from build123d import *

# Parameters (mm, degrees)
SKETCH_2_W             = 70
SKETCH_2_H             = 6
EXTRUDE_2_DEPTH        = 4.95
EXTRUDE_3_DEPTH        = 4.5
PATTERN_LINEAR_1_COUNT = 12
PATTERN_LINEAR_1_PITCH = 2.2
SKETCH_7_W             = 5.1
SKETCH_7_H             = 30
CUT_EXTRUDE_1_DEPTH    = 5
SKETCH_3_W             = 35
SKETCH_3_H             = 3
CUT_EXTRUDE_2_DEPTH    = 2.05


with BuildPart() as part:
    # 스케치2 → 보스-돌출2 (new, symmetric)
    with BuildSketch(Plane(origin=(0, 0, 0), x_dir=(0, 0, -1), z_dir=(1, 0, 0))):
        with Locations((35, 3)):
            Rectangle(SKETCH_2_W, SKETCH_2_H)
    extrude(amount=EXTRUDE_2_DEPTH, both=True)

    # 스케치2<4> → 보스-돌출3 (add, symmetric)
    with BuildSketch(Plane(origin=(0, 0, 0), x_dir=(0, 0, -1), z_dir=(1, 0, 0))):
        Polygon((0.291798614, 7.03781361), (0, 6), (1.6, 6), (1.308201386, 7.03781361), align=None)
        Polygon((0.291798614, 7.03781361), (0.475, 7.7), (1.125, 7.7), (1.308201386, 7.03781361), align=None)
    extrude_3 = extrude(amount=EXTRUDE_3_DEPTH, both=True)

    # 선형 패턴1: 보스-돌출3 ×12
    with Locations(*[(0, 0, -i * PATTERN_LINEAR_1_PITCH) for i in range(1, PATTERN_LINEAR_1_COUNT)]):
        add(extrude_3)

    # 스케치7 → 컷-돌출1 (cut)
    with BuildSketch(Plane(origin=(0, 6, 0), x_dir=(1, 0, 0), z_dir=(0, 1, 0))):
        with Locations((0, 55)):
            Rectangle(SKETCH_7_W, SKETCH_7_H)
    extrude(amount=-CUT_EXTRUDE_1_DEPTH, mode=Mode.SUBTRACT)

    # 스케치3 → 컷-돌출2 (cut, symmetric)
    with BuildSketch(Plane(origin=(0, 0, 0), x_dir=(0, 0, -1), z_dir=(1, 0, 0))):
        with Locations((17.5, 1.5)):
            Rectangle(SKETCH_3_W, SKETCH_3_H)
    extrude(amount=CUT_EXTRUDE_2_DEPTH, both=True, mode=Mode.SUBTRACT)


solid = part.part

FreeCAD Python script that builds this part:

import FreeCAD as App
import Part
import Sketcher


def add_polygon(sketch, points):
    """Adds a closed chain of lines whose ends are joined by coincident constraints."""
    first, n = sketch.GeometryCount, len(points)
    for a, b in zip(points, points[1:] + points[:1]):
        sketch.addGeometry(Part.LineSegment(App.Vector(*a, 0), App.Vector(*b, 0)), False)
    for i in range(n):
        sketch.addConstraint(Sketcher.Constraint("Coincident", first + i, 2, first + (i + 1) % n, 1))

doc = App.newDocument("Part")
params = doc.addObject("Spreadsheet::Sheet", "Params")
for row, (alias, value) in enumerate([
    ("sketch1_width", "6 mm"),
    ("sketch1_height", "70 mm"),
    ("pad1_length", "9.9 mm"),
    ("sketch2_height", "1.6 mm"),
    ("sketch2_height2", "0.65 mm"),
    ("pad2_length", "9 mm"),
    ("linearpattern_pitch", "2.2 mm"),
    ("sketch3_height", "30 mm"),
    ("sketch3_width", "5.1 mm"),
    ("pocket1_length", "5 mm"),
    ("sketch4_width", "3 mm"),
    ("sketch4_height", "35 mm"),
    ("pocket2_length", "4.1 mm"),
], start=1):
    params.set(f"A{row}", alias)
    params.set(f"B{row}", "=" + value)
    params.setAlias(f"B{row}", alias)

body = doc.addObject("PartDesign::Body", "Body")

# Sketch on YZ plane
sketch1 = body.newObject("Sketcher::SketchObject", "Sketch")
sketch1.AttachmentSupport = (doc.getObject("YZ_Plane"), [""])
sketch1.MapMode = "FlatFace"
add_polygon(sketch1, [(6, 0), (0, 0), (0, -70), (6, -70)])  # lines 0-3
sketch1.addConstraint(Sketcher.Constraint("Horizontal", 0))
sketch1.addConstraint(Sketcher.Constraint("Vertical", 1))
sketch1.addConstraint(Sketcher.Constraint("Horizontal", 2))
sketch1.addConstraint(Sketcher.Constraint("Vertical", 3))
sketch1.addConstraint(Sketcher.Constraint("Coincident", 0, 2, -1, 1))
sketch1.addConstraint(Sketcher.Constraint("DistanceX", 0, 2, 0, 1, 6.0))
sketch1.addConstraint(Sketcher.Constraint("DistanceY", 1, 2, 1, 1, 70.0))
sketch1.setExpression("Constraints[9]", "Params.sketch1_width")
sketch1.setExpression("Constraints[10]", "Params.sketch1_height")
pad1 = body.newObject("PartDesign::Pad", "Pad")
pad1.Profile = sketch1
pad1.setExpression("Length", "Params.pad1_length")
pad1.Midplane = True

# Sketch on YZ plane
sketch2 = body.newObject("Sketcher::SketchObject", "Sketch001")
sketch2.AttachmentSupport = (doc.getObject("YZ_Plane"), [""])
sketch2.MapMode = "FlatFace"
add_polygon(sketch2, [(7, -0.3), (6, 0), (6, -1.6), (7, -1.3), (7.7, -1.1), (7.7, -0.5)])  # lines 0-5
sketch2.addConstraint(Sketcher.Constraint("Vertical", 1))
sketch2.addConstraint(Sketcher.Constraint("Vertical", 4))
sketch2.addConstraint(Sketcher.Constraint("PointOnObject", 0, 2, -1))
sketch2.addConstraint(Sketcher.Constraint("Vertical", 2, 2, 5, 2))
sketch2.addConstraint(Sketcher.Constraint("Equal", 0, 2))
sketch2.addConstraint(Sketcher.Constraint("Equal", 3, 5))
sketch2.addConstraint(Sketcher.Constraint("DistanceY", 1, 2, 1, 1, 1.6))
sketch2.addConstraint(Sketcher.Constraint("DistanceX", -1, 1, 0, 2, 6.0))
sketch2.addConstraint(Sketcher.Constraint("DistanceY", 4, 1, 4, 2, 0.65))
sketch2.addConstraint(Sketcher.Constraint("DistanceX", -1, 1, 3, 2, 7.7))
sketch2.addConstraint(Sketcher.Constraint("DistanceY", 2, 2, -1, 1, 1.308201))
sketch2.addConstraint(Sketcher.Constraint("Distance", 3, 0.687062))
sketch2.setExpression("Constraints[12]", "Params.sketch2_height")
sketch2.setExpression("Constraints[14]", "Params.sketch2_height2")
pad2 = body.newObject("PartDesign::Pad", "Pad001")
pad2.Profile = sketch2
pad2.setExpression("Length", "Params.pad2_length")
pad2.Midplane = True
doc.recompute()

linearpattern = body.newObject("PartDesign::LinearPattern", "LinearPattern")
linearpattern.Originals = [pad2]
linearpattern.Direction = (doc.getObject("Z_Axis"), [""])
linearpattern.Mode = "offset"
linearpattern.setExpression("Offset", "Params.linearpattern_pitch")
linearpattern.Occurrences = 12
linearpattern.Reversed = True
body.Tip = linearpattern

# Sketch on XZ plane
sketch3 = body.newObject("Sketcher::SketchObject", "Sketch002")
sketch3.AttachmentSupport = (doc.getObject("XZ_Plane"), [""])
sketch3.MapMode = "FlatFace"
sketch3.AttachmentOffset = App.Placement(App.Vector(0, 0, -6), App.Rotation())
add_polygon(sketch3, [(-3, -70), (-3, -40), (3, -40), (3, -70)])  # lines 0-3
sketch3.addConstraint(Sketcher.Constraint("Vertical", 0))
sketch3.addConstraint(Sketcher.Constraint("Horizontal", 1))
sketch3.addConstraint(Sketcher.Constraint("Vertical", 2))
sketch3.addConstraint(Sketcher.Constraint("Horizontal", 3))
sketch3.addConstraint(Sketcher.Constraint("DistanceY", 0, 1, 0, 2, 30.0))
sketch3.addConstraint(Sketcher.Constraint("DistanceX", 1, 1, 1, 2, 5.1))
sketch3.addConstraint(Sketcher.Constraint("DistanceY", 0, 2, -1, 1, 40.0))
sketch3.addConstraint(Sketcher.Constraint("DistanceX", 0, 2, -1, 1, 2.55))
sketch3.setExpression("Constraints[8]", "Params.sketch3_height")
sketch3.setExpression("Constraints[9]", "Params.sketch3_width")
pocket1 = body.newObject("PartDesign::Pocket", "Pocket")
pocket1.Profile = sketch3
pocket1.setExpression("Length", "Params.pocket1_length")
pocket1.Reversed = True

# Sketch on YZ plane
sketch4 = body.newObject("Sketcher::SketchObject", "Sketch003")
sketch4.AttachmentSupport = (doc.getObject("YZ_Plane"), [""])
sketch4.MapMode = "FlatFace"
add_polygon(sketch4, [(3, 0), (0, 0), (0, -35), (3, -35)])  # lines 0-3
sketch4.addConstraint(Sketcher.Constraint("Horizontal", 0))
sketch4.addConstraint(Sketcher.Constraint("Vertical", 1))
sketch4.addConstraint(Sketcher.Constraint("Horizontal", 2))
sketch4.addConstraint(Sketcher.Constraint("Vertical", 3))
sketch4.addConstraint(Sketcher.Constraint("Coincident", 0, 2, -1, 1))
sketch4.addConstraint(Sketcher.Constraint("DistanceX", 0, 2, 0, 1, 3.0))
sketch4.addConstraint(Sketcher.Constraint("DistanceY", 1, 2, 1, 1, 35.0))
sketch4.setExpression("Constraints[9]", "Params.sketch4_width")
sketch4.setExpression("Constraints[10]", "Params.sketch4_height")
pocket2 = body.newObject("PartDesign::Pocket", "Pocket001")
pocket2.Profile = sketch4
pocket2.setExpression("Length", "Params.pocket2_length")
pocket2.Midplane = True

doc.recompute()
